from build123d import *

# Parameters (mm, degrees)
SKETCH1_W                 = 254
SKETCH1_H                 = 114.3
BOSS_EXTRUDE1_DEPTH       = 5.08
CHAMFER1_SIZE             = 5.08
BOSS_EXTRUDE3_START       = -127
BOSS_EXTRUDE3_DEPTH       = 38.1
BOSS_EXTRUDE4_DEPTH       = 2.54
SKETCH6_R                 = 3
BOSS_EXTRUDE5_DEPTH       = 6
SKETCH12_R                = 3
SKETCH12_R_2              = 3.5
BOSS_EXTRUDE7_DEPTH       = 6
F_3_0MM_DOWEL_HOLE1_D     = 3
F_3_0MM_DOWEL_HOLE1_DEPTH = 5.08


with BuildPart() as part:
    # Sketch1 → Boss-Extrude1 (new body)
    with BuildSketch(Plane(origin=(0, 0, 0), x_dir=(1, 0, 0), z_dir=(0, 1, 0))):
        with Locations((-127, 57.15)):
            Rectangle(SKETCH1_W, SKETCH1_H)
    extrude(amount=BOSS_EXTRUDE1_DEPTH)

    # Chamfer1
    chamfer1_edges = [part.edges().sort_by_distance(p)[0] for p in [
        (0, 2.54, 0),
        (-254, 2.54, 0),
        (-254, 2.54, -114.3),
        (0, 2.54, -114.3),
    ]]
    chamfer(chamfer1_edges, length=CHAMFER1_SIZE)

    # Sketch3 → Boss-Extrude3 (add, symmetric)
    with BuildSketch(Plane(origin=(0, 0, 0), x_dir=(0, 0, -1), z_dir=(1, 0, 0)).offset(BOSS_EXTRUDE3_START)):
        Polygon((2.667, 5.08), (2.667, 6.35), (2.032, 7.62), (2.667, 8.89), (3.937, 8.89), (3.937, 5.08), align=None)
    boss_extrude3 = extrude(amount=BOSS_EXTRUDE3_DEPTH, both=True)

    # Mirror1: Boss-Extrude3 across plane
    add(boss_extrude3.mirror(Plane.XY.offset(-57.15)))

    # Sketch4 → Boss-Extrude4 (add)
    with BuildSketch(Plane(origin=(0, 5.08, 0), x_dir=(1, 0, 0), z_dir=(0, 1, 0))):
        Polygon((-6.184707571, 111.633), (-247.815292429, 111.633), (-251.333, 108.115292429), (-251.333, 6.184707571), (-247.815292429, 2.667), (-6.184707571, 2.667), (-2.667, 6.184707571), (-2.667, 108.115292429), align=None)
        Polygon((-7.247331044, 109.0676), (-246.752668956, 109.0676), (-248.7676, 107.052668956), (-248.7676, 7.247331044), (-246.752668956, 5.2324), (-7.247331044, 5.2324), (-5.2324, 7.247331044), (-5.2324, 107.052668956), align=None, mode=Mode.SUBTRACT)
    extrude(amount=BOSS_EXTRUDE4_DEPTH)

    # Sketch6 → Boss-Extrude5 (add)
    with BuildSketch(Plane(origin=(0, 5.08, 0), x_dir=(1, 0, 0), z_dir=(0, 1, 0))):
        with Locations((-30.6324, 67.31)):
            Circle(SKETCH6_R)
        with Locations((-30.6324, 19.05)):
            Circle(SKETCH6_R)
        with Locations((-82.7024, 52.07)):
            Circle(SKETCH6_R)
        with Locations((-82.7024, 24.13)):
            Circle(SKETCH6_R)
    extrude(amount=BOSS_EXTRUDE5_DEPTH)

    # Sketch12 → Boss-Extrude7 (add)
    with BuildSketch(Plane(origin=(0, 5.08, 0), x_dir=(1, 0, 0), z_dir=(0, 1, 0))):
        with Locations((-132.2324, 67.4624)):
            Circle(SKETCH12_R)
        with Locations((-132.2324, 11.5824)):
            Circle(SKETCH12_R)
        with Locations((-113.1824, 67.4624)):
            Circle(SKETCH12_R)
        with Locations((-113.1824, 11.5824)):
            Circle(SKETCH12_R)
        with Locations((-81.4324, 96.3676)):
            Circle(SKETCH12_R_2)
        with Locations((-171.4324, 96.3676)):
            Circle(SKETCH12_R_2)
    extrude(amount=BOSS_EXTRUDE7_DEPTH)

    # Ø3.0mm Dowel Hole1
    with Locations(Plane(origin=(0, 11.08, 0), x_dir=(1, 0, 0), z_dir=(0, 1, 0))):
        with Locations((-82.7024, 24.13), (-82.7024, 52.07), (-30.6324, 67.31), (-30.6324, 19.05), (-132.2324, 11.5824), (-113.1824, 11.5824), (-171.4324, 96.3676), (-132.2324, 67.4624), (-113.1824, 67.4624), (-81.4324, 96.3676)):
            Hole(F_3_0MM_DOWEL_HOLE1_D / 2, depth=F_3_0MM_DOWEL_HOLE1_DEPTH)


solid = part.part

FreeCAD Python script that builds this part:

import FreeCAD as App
import Part
import Sketcher
Q = App.Units.Quantity


def edges_at(feature, points):
    """Names of the edges that pass closest to the given points."""
    edges = feature.Shape.Edges
    near = lambda p: min(range(len(edges)), key=lambda i: edges[i].distToShape(Part.Vertex(*p))[0])
    return sorted({f"Edge{near(p) + 1}" for p in points})

doc = App.newDocument("Part")
params = doc.addObject("Spreadsheet::Sheet", "Params")
for row, (alias, value) in enumerate([
    ("sketch1_width", "10 in"),
    ("sketch1_height", "4.5 in"),
    ("pad1_length", "0.2 in"),
    ("chamfer_size", "0.2 in"),
    ("sketch2_width", "0.05 in"),
    ("sketch2_width2", "0.15 in"),
    ("pad2_length", "3 in"),
    ("pad3_length", "0.1 in"),
    ("pad4_length", "6 mm"),
    ("pad5_length", "6 mm"),
    ("hole_diameter", "3 mm"),
    ("hole_depth", "0.2 in"),
], start=1):
    params.set(f"A{row}", alias)
    params.set(f"B{row}", "=" + value)
    params.setAlias(f"B{row}", alias)

body = doc.addObject("PartDesign::Body", "Body")

# Sketch on XZ plane
sketch1 = body.newObject("Sketcher::SketchObject", "Sketch")
sketch1.AttachmentSupport = (doc.getObject("XZ_Plane"), [""])
sketch1.MapMode = "FlatFace"
sketch1.addGeometry([
    Part.LineSegment(App.Vector(-254, -114, 0), App.Vector(-254, 0, 0)),
    Part.LineSegment(App.Vector(-254, 0, 0), App.Vector(0, 0, 0)),
    Part.LineSegment(App.Vector(0, 0, 0), App.Vector(0, -114, 0)),
    Part.LineSegment(App.Vector(0, -114, 0), App.Vector(-254, -114, 0)),
], False)
sketch1.addConstraint([
    Sketcher.Constraint("Coincident", 0, 2, 1, 1),
    Sketcher.Constraint("Coincident", 1, 2, 2, 1),
    Sketcher.Constraint("Coincident", 2, 2, 3, 1),
    Sketcher.Constraint("Coincident", 3, 2, 0, 1),
    Sketcher.Constraint("Vertical", 0),
    Sketcher.Constraint("Horizontal", 1),
    Sketcher.Constraint("Vertical", 2),
    Sketcher.Constraint("Horizontal", 3),
    Sketcher.Constraint("Coincident", 1, 2, -1, 1),
    Sketcher.Constraint("DistanceX", 1, 1, 1, 2, Q("10 in")),
    Sketcher.Constraint("DistanceY", 0, 1, 0, 2, Q("4.5 in")),
])
sketch1.setExpression("Constraints[9]", "Params.sketch1_width")
sketch1.setExpression("Constraints[10]", "Params.sketch1_height")
pad1 = body.newObject("PartDesign::Pad", "Pad")
pad1.Profile = sketch1
pad1.setExpression("Length", "Params.pad1_length")
pad1.Reversed = True
doc.recompute()

chamfer = body.newObject("PartDesign::Chamfer", "Chamfer")
chamfer.Base = (pad1, edges_at(pad1, [
    (0, 2.54, 0),
    (-254, 2.54, 0),
    (-254, 2.54, -114.3),
    (0, 2.54, -114.3),
]))
chamfer.setExpression("Size", "Params.chamfer_size")

# Sketch on YZ plane
sketch2 = body.newObject("Sketcher::SketchObject", "Sketch001")
sketch2.AttachmentSupport = (doc.getObject("YZ_Plane"), [""])
sketch2.MapMode = "FlatFace"
sketch2.AttachmentOffset = App.Placement(App.Vector(0, 0, -5 * 25.4), App.Rotation())
sketch2.addGeometry([
    Part.LineSegment(App.Vector(6.3, -2.7, 0), App.Vector(5.1, -2.7, 0)),  # 0
    Part.LineSegment(App.Vector(5.1, -2.7, 0), App.Vector(5.1, -3.9, 0)),  # 1
    Part.LineSegment(App.Vector(5.1, -3.9, 0), App.Vector(8.9, -3.9, 0)),  # 2
    Part.LineSegment(App.Vector(8.9, -3.9, 0), App.Vector(8.9, -2.7, 0)),  # 3
    Part.LineSegment(App.Vector(8.9, -2.7, 0), App.Vector(7.6, -2, 0)),  # 4
    Part.LineSegment(App.Vector(7.6, -2, 0), App.Vector(6.3, -2.7, 0)),  # 5
], False)
sketch2.addConstraint([
    Sketcher.Constraint("Coincident", 0, 2, 1, 1),
    Sketcher.Constraint("Coincident", 1, 2, 2, 1),
    Sketcher.Constraint("Coincident", 2, 2, 3, 1),
    Sketcher.Constraint("Coincident", 3, 2, 4, 1),
    Sketcher.Constraint("Coincident", 4, 2, 5, 1),
    Sketcher.Constraint("Coincident", 5, 2, 0, 1),
    Sketcher.Constraint("Horizontal", 0),
    Sketcher.Constraint("Vertical", 1),
    Sketcher.Constraint("Horizontal", 2),
    Sketcher.Constraint("Vertical", 3),
    Sketcher.Constraint("Horizontal", 0, 2, 3, 2),
    Sketcher.Constraint("Equal", 0, 1),
    Sketcher.Constraint("Equal", 4, 5),
    Sketcher.Constraint("DistanceX", 0, 2, 0, 1, Q("0.05 in")),
    Sketcher.Constraint("DistanceX", 2, 1, 2, 2, Q("0.15 in")),
    Sketcher.Constraint("DistanceX", -1, 1, 0, 2, Q("0.2 in")),
    Sketcher.Constraint("DistanceY", 4, 2, -1, 1, Q("0.08 in")),
    Sketcher.Constraint("DistanceY", 0, 2, -1, 1, Q("0.105 in")),
])
sketch2.setExpression("Constraints[13]", "Params.sketch2_width")
sketch2.setExpression("Constraints[14]", "Params.sketch2_width2")
pad2 = body.newObject("PartDesign::Pad", "Pad001")
pad2.Profile = sketch2
pad2.setExpression("Length", "Params.pad2_length")
pad2.Midplane = True
doc.recompute()

datumplane = body.newObject("PartDesign::Plane", "DatumPlane")
datumplane.AttachmentSupport = (doc.getObject("XY_Plane"), [""])
datumplane.MapMode = "FlatFace"
datumplane.AttachmentOffset = App.Placement(App.Vector(0, 0, -2.25 * 25.4), App.Rotation())
mirrored = body.newObject("PartDesign::Mirrored", "Mirrored")
mirrored.Originals = [pad2]
mirrored.MirrorPlane = (datumplane, [""])
body.Tip = mirrored

# Sketch on XZ plane
sketch3 = body.newObject("Sketcher::SketchObject", "Sketch002")
sketch3.AttachmentSupport = (doc.getObject("XZ_Plane"), [""])
sketch3.MapMode = "FlatFace"
sketch3.AttachmentOffset = App.Placement(App.Vector(0, 0, -0.2 * 25.4), App.Rotation())
sketch3.addGeometry([
    Part.LineSegment(App.Vector(-6.2, -111.6, 0), App.Vector(-247.8, -111.6, 0)),  # 0
    Part.LineSegment(App.Vector(-247.8, -111.6, 0), App.Vector(-251.3, -108.1, 0)),  # 1
    Part.LineSegment(App.Vector(-251.3, -108.1, 0), App.Vector(-251.3, -6.2, 0)),  # 2
    Part.LineSegment(App.Vector(-251.3, -6.2, 0), App.Vector(-247.8, -2.7, 0)),  # 3
    Part.LineSegment(App.Vector(-247.8, -2.7, 0), App.Vector(-6.2, -2.7, 0)),  # 4
    Part.LineSegment(App.Vector(-6.2, -2.7, 0), App.Vector(-2.7, -6.2, 0)),  # 5
    Part.LineSegment(App.Vector(-2.7, -6.2, 0), App.Vector(-2.7, -108.1, 0)),  # 6
    Part.LineSegment(App.Vector(-2.7, -108.1, 0), App.Vector(-6.2, -111.6, 0)),  # 7
    Part.LineSegment(App.Vector(-246.8, -109.1, 0), App.Vector(-7.2, -109.1, 0)),  # 8
    Part.LineSegment(App.Vector(-7.2, -109.1, 0), App.Vector(-5.2, -107.1, 0)),  # 9
    Part.LineSegment(App.Vector(-5.2, -107.1, 0), App.Vector(-5.2, -7.2, 0)),  # 10
    Part.LineSegment(App.Vector(-5.2, -7.2, 0), App.Vector(-7.2, -5.2, 0)),  # 11
    Part.LineSegment(App.Vector(-7.2, -5.2, 0), App.Vector(-246.8, -5.2, 0)),  # 12
    Part.LineSegment(App.Vector(-246.8, -5.2, 0), App.Vector(-248.8, -7.2, 0)),  # 13
    Part.LineSegment(App.Vector(-248.8, -7.2, 0), App.Vector(-248.8, -107.1, 0)),  # 14
    Part.LineSegment(App.Vector(-248.8, -107.1, 0), App.Vector(-246.8, -109.1, 0)),  # 15
], False)
sketch3.addConstraint([
    Sketcher.Constraint("Coincident", 0, 2, 1, 1),
    Sketcher.Constraint("Coincident", 1, 2, 2, 1),
    Sketcher.Constraint("Coincident", 2, 2, 3, 1),
    Sketcher.Constraint("Coincident", 3, 2, 4, 1),
    Sketcher.Constraint("Coincident", 4, 2, 5, 1),
    Sketcher.Constraint("Coincident", 5, 2, 6, 1),
    Sketcher.Constraint("Coincident", 6, 2, 7, 1),
    Sketcher.Constraint("Coincident", 7, 2, 0, 1),
    Sketcher.Constraint("Coincident", 8, 2, 9, 1),
    Sketcher.Constraint("Coincident", 9, 2, 10, 1),
    Sketcher.Constraint("Coincident", 10, 2, 11, 1),
    Sketcher.Constraint("Coincident", 11, 2, 12, 1),
    Sketcher.Constraint("Coincident", 12, 2, 13, 1),
    Sketcher.Constraint("Coincident", 13, 2, 14, 1),
    Sketcher.Constraint("Coincident", 14, 2, 15, 1),
    Sketcher.Constraint("Coincident", 15, 2, 8, 1),
    Sketcher.Constraint("Horizontal", 0),
    Sketcher.Constraint("Vertical", 2),
    Sketcher.Constraint("Horizontal", 4),
    Sketcher.Constraint("Vertical", 6),
    Sketcher.Constraint("Horizontal", 8),
    Sketcher.Constraint("Vertical", 10),
    Sketcher.Constraint("Horizontal", 12),
    Sketcher.Constraint("Vertical", 14),
    Sketcher.Constraint("Perpendicular", 1, 3),
    Sketcher.Constraint("Perpendicular", 3, 5),
    Sketcher.Constraint("Perpendicular", 5, 7),
    Sketcher.Constraint("Parallel", 7, 9),
    Sketcher.Constraint("Perpendicular", 9, 11),
    Sketcher.Constraint("Perpendicular", 11, 13),
    Sketcher.Constraint("Perpendicular", 13, 15),
    Sketcher.Constraint("Horizontal", 2, 2, 5, 2),
    Sketcher.Constraint("Horizontal", 1, 2, 6, 2),
    Sketcher.Constraint("Horizontal", 10, 2, 13, 2),
    Sketcher.Constraint("Horizontal", 9, 2, 14, 2),
    Sketcher.Constraint("Vertical", 0, 2, 3, 2),
    Sketcher.Constraint("Vertical", 4, 2, 7, 2),
    Sketcher.Constraint("Vertical", 8, 2, 11, 2),
    Sketcher.Constraint("DistanceY", 0, 2, 3, 2, Q("4.29 in")),
    Sketcher.Constraint("DistanceX", 2, 2, 5, 2, Q("9.79 in")),
    Sketcher.Constraint("DistanceY", 0, 2, -1, 1, Q("4.395 in")),
    Sketcher.Constraint("DistanceX", 1, 2, -1, 1, Q("9.895 in")),
    Sketcher.Constraint("DistanceY", 8, 2, -1, 1, Q("4.294 in")),
    Sketcher.Constraint("DistanceX", 9, 2, -1, 1, Q("0.206 in")),
    Sketcher.Constraint("DistanceY", 11, 2, -1, 1, Q("0.206 in")),
    Sketcher.Constraint("DistanceX", 13, 2, -1, 1, Q("9.794 in")),
    Sketcher.Constraint("Distance", 1, Q("4.97479 mm")),
    Sketcher.Constraint("DistanceX", 8, 1, 8, 2, Q("239.505338 mm")),
])
pad3 = body.newObject("PartDesign::Pad", "Pad002")
pad3.Profile = sketch3
pad3.setExpression("Length", "Params.pad3_length")
pad3.Reversed = True

# Sketch on XZ plane
sketch4 = body.newObject("Sketcher::SketchObject", "Sketch003")
sketch4.AttachmentSupport = (doc.getObject("XZ_Plane"), [""])
sketch4.MapMode = "FlatFace"
sketch4.AttachmentOffset = App.Placement(App.Vector(0, 0, -0.2 * 25.4), App.Rotation())
sketch4.addGeometry([
    Part.Circle(App.Vector(-30.6, -67.3, 0), App.Vector(0, 0, 1), 3),
    Part.Circle(App.Vector(-30.6, -19.1, 0), App.Vector(0, 0, 1), 3),
    Part.Circle(App.Vector(-82.7, -52.1, 0), App.Vector(0, 0, 1), 3),
    Part.Circle(App.Vector(-82.7, -24.1, 0), App.Vector(0, 0, 1), 3),
], False)
sketch4.addConstraint([
    Sketcher.Constraint("Equal", 0, 1),
    Sketcher.Constraint("Equal", 1, 2),
    Sketcher.Constraint("Equal", 2, 3),
    Sketcher.Constraint("Vertical", 0, 3, 1, 3),
    Sketcher.Constraint("Vertical", 2, 3, 3, 3),
    Sketcher.Constraint("DistanceY", 0, 3, 1, 3, Q("1.9 in")),
    Sketcher.Constraint("DistanceY", 0, 3, 2, 3, Q("0.6 in")),
    Sketcher.Constraint("DistanceY", 2, 3, 3, 3, Q("1.1 in")),
    Sketcher.Constraint("Diameter", 0, Q("6 mm")),
    Sketcher.Constraint("DistanceY", 0, 3, -1, 1, Q("2.65 in")),
    Sketcher.Constraint("DistanceX", 2, 3, 0, 3, Q("2.05 in")),
    Sketcher.Constraint("DistanceX", 0, 3, -1, 1, Q("1.206 in")),
])
pad4 = body.newObject("PartDesign::Pad", "Pad003")
pad4.Profile = sketch4
pad4.setExpression("Length", "Params.pad4_length")
pad4.Reversed = True

# Sketch on XZ plane
sketch5 = body.newObject("Sketcher::SketchObject", "Sketch004")
sketch5.AttachmentSupport = (doc.getObject("XZ_Plane"), [""])
sketch5.MapMode = "FlatFace"
sketch5.AttachmentOffset = App.Placement(App.Vector(0, 0, -0.2 * 25.4), App.Rotation())
sketch5.addGeometry([
    Part.Circle(App.Vector(-132.2, -67.5, 0), App.Vector(0, 0, 1), 3),  # 0
    Part.Circle(App.Vector(-132.2, -11.6, 0), App.Vector(0, 0, 1), 3),  # 1
    Part.Circle(App.Vector(-113.2, -67.5, 0), App.Vector(0, 0, 1), 3),  # 2
    Part.Circle(App.Vector(-113.2, -11.6, 0), App.Vector(0, 0, 1), 3),  # 3
    Part.Circle(App.Vector(-81.4, -96.4, 0), App.Vector(0, 0, 1), 3.5),  # 4
    Part.Circle(App.Vector(-171.4, -96.4, 0), App.Vector(0, 0, 1), 3.5),  # 5
], False)
sketch5.addConstraint([
    Sketcher.Constraint("Equal", 0, 1),
    Sketcher.Constraint("Equal", 1, 2),
    Sketcher.Constraint("Equal", 2, 3),
    Sketcher.Constraint("Equal", 4, 5),
    Sketcher.Constraint("Horizontal", 0, 3, 2, 3),
    Sketcher.Constraint("Horizontal", 1, 3, 3, 3),
    Sketcher.Constraint("Horizontal", 4, 3, 5, 3),
    Sketcher.Constraint("Vertical", 0, 3, 1, 3),
    Sketcher.Constraint("Vertical", 2, 3, 3, 3),
    Sketcher.Constraint("DistanceX", 0, 3, 4, 3, Q("2 in")),
    Sketcher.Constraint("DistanceY", 0, 3, 1, 3, Q("2.2 in")),
    Sketcher.Constraint("Diameter", 0, Q("6 mm")),
    Sketcher.Constraint("Diameter", 4, Q("7 mm")),
    Sketcher.Constraint("DistanceX", 0, 3, 2, 3, Q("0.75 in")),
    Sketcher.Constraint("DistanceX", 0, 3, -1, 1, Q("5.206 in")),
    Sketcher.Constraint("DistanceY", 0, 3, -1, 1, Q("2.656 in")),
    Sketcher.Constraint("DistanceY", 4, 3, -1, 1, Q("3.794 in")),
    Sketcher.Constraint("DistanceX", 5, 3, -1, 1, Q("171.4324 mm")),
])
pad5 = body.newObject("PartDesign::Pad", "Pad004")
pad5.Profile = sketch5
pad5.setExpression("Length", "Params.pad5_length")
pad5.Reversed = True

# Sketch on XZ plane
sketch6 = body.newObject("Sketcher::SketchObject", "Sketch005")
sketch6.AttachmentSupport = (doc.getObject("XZ_Plane"), [""])
sketch6.MapMode = "FlatFace"
sketch6.AttachmentOffset = App.Placement(App.Vector(0, 0, -11.08), App.Rotation())
sketch6.addGeometry([
    Part.Circle(App.Vector(-82.7, -24.1, 0), App.Vector(0, 0, 1), 1.5),  # 0
    Part.Circle(App.Vector(-82.7, -52.1, 0), App.Vector(0, 0, 1), 1.5),  # 1
    Part.Circle(App.Vector(-30.6, -67.3, 0), App.Vector(0, 0, 1), 1.5),  # 2
    Part.Circle(App.Vector(-30.6, -19.1, 0), App.Vector(0, 0, 1), 1.5),  # 3
    Part.Circle(App.Vector(-132.2, -11.6, 0), App.Vector(0, 0, 1), 1.5),  # 4
    Part.Circle(App.Vector(-113.2, -11.6, 0), App.Vector(0, 0, 1), 1.5),  # 5
    Part.Circle(App.Vector(-171.4, -96.4, 0), App.Vector(0, 0, 1), 1.5),  # 6
    Part.Circle(App.Vector(-132.2, -67.5, 0), App.Vector(0, 0, 1), 1.5),  # 7
    Part.Circle(App.Vector(-113.2, -67.5, 0), App.Vector(0, 0, 1), 1.5),  # 8
    Part.Circle(App.Vector(-81.4, -96.4, 0), App.Vector(0, 0, 1), 1.5),  # 9
], False)
sketch6.addConstraint([
    Sketcher.Constraint("Equal", 0, 1),
    Sketcher.Constraint("Equal", 1, 2),
    Sketcher.Constraint("Equal", 2, 3),
    Sketcher.Constraint("Equal", 3, 4),
    Sketcher.Constraint("Equal", 4, 5),
    Sketcher.Constraint("Equal", 5, 6),
    Sketcher.Constraint("Equal", 6, 7),
    Sketcher.Constraint("Equal", 7, 8),
    Sketcher.Constraint("Equal", 8, 9),
    Sketcher.Constraint("Horizontal", 4, 3, 5, 3),
    Sketcher.Constraint("Horizontal", 7, 3, 8, 3),
    Sketcher.Constraint("Horizontal", 6, 3, 9, 3),
    Sketcher.Constraint("Vertical", 0, 3, 1, 3),
    Sketcher.Constraint("Vertical", 2, 3, 3, 3),
    Sketcher.Constraint("Vertical", 4, 3, 7, 3),
    Sketcher.Constraint("Vertical", 5, 3, 8, 3),
    Sketcher.Constraint("DistanceX", 4, 3, 3, 3, Q("4 in")),
    Sketcher.Constraint("DistanceX", 7, 3, 9, 3, Q("2 in")),
    Sketcher.Constraint("DistanceY", 1, 3, 0, 3, Q("1.1 in")),
    Sketcher.Constraint("DistanceY", 2, 3, 1, 3, Q("0.6 in")),
    Sketcher.Constraint("DistanceY", 2, 3, 3, 3, Q("1.9 in")),
    Sketcher.Constraint("DistanceX", 5, 3, 0, 3, Q("1.2 in")),
    Sketcher.Constraint("DistanceY", 7, 3, 4, 3, Q("2.2 in")),
    Sketcher.Constraint("Diameter", 0, Q("3 mm")),
    Sketcher.Constraint("DistanceY", 0, 3, -1, 1, Q("0.95 in")),
    Sketcher.Constraint("DistanceX", 1, 3, 2, 3, Q("2.05 in")),
    Sketcher.Constraint("DistanceX", 0, 3, -1, 1, Q("3.256 in")),
    Sketcher.Constraint("DistanceY", 4, 3, -1, 1, Q("0.456 in")),
    Sketcher.Constraint("DistanceY", 6, 3, -1, 1, Q("3.794 in")),
    Sketcher.Constraint("DistanceX", 6, 3, -1, 1, Q("171.4324 mm")),
])
doc.recompute()
hole = body.newObject("PartDesign::Hole", "Hole")
hole.Profile = sketch6
hole.ThreadType = "None"
hole.setExpression("Diameter", "Params.hole_diameter")
hole.DepthType = "Dimension"
hole.setExpression("Depth", "Params.hole_depth")
hole.DrillPoint = "Flat"
hole.Reversed = True

doc.recompute()
